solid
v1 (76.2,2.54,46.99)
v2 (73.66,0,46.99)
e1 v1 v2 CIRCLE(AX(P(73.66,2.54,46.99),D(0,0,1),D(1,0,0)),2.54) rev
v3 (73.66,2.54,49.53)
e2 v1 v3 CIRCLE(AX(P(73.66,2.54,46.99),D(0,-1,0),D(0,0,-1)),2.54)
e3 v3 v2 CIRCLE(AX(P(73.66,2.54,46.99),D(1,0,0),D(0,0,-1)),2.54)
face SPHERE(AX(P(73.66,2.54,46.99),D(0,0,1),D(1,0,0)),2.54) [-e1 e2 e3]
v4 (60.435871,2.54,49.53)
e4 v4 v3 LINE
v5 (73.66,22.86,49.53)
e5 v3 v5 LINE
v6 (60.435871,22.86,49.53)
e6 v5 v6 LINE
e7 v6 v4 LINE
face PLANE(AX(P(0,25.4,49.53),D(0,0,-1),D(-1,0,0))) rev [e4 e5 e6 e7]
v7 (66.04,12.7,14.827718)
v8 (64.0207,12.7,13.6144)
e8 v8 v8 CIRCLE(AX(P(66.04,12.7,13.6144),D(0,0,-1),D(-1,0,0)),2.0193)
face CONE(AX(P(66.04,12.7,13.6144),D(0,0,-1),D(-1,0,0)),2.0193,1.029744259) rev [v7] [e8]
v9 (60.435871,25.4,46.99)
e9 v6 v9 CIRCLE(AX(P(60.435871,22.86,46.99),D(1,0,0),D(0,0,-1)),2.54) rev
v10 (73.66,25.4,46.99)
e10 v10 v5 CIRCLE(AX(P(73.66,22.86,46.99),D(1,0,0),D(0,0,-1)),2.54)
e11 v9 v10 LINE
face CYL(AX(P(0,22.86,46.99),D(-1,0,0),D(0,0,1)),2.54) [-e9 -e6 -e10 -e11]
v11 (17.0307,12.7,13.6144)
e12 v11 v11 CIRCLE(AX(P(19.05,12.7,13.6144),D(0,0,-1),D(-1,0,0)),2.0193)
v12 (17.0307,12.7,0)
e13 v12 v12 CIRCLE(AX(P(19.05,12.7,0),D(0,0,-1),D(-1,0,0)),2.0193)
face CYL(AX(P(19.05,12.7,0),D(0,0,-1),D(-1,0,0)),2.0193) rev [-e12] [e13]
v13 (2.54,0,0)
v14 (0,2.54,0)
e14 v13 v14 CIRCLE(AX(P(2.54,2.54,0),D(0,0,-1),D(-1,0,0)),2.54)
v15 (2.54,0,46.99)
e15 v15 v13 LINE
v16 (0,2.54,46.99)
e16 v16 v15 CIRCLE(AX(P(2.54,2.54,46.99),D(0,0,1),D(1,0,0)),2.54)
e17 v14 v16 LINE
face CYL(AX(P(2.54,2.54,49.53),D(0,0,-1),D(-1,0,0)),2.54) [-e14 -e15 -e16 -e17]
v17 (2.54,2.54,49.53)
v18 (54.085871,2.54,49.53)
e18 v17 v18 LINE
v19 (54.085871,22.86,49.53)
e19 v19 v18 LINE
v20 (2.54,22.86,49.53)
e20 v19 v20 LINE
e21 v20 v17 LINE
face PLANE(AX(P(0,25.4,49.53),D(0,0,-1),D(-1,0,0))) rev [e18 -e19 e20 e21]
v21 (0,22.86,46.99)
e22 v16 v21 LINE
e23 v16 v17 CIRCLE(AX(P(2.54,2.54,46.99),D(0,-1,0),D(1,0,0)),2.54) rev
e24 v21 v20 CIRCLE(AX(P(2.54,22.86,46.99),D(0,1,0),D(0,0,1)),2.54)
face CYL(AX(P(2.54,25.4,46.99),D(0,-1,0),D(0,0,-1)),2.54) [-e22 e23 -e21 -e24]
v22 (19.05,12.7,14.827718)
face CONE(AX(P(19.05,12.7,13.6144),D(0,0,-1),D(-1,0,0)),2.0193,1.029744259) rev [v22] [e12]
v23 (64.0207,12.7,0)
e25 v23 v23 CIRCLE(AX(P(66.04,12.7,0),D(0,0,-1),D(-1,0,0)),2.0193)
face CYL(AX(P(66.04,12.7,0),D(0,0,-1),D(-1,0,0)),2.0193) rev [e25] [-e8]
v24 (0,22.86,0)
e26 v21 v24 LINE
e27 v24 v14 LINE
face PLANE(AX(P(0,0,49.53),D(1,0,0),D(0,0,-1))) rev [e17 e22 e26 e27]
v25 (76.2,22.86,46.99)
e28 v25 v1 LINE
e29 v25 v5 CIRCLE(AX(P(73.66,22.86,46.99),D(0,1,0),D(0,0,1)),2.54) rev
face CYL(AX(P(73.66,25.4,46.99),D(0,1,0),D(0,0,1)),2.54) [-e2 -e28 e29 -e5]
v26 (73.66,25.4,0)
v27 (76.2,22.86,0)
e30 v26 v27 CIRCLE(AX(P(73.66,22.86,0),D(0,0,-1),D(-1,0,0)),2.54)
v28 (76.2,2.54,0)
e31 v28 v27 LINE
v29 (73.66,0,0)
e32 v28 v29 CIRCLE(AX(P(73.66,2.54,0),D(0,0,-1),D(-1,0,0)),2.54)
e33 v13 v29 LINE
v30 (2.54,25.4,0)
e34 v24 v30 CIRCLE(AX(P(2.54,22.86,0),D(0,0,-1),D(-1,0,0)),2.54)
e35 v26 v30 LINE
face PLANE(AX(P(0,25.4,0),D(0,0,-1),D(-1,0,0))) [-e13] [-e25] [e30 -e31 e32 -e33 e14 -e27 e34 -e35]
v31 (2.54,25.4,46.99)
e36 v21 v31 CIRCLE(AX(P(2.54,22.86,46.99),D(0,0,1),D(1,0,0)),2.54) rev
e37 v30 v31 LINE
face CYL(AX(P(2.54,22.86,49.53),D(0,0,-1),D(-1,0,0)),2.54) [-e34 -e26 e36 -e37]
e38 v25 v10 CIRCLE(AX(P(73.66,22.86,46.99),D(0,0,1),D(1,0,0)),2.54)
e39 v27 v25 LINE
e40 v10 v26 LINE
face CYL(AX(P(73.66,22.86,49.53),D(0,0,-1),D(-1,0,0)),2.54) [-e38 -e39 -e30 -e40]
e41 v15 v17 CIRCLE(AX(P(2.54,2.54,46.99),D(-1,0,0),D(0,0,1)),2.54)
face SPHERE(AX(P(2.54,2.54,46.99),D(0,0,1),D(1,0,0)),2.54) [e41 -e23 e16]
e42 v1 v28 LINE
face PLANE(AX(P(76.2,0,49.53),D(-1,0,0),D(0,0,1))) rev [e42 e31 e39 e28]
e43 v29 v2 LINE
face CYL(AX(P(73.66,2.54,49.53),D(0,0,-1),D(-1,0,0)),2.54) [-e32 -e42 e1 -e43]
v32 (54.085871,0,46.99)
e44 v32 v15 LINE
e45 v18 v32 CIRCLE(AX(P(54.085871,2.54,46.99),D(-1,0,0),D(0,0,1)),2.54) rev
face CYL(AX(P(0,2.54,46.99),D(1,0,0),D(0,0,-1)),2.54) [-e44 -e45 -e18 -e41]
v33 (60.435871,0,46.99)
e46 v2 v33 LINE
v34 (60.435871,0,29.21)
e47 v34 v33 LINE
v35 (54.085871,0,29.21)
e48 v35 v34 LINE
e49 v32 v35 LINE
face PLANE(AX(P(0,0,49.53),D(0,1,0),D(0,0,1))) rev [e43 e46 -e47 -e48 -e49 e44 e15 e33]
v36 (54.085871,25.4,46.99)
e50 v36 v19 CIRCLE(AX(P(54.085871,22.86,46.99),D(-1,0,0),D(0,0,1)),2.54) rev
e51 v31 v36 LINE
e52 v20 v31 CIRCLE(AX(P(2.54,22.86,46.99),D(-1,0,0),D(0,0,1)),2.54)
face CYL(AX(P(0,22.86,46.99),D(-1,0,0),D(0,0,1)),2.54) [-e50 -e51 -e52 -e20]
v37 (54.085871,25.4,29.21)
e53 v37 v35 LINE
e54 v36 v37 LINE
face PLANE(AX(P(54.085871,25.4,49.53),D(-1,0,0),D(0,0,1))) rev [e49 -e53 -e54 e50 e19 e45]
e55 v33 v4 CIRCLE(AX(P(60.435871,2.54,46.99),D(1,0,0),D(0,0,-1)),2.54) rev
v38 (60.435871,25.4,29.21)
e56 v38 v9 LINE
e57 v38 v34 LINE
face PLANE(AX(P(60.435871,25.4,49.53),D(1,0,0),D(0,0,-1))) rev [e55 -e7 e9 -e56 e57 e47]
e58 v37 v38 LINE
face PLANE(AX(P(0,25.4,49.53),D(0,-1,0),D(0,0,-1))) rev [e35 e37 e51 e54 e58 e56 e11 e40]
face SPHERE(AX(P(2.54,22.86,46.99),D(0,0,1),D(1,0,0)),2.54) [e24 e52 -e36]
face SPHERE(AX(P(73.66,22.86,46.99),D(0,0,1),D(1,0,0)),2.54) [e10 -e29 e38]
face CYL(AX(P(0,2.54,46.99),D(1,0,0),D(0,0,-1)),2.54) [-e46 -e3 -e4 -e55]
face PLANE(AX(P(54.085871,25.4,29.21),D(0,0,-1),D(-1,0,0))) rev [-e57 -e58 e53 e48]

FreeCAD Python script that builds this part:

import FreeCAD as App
import Part
import Sketcher
from FreeCAD import Vector
Q = App.Units.Quantity


def edges_at(feature, points):
    """Names of the edges that pass closest to the given points."""
    edges = feature.Shape.Edges
    near = lambda p: min(range(len(edges)), key=lambda i: edges[i].distToShape(Part.Vertex(*p))[0])
    return sorted({f"Edge{near(p) + 1}" for p in points})

doc = App.newDocument("Part")
params = doc.addObject("Spreadsheet::Sheet", "Params")
for row, (alias, value) in enumerate([
    ("sketch1_width", "3 in"),
    ("sketch1_height", "1 in"),
    ("pad1_length", "1.95 in"),
    ("sketch2_height", "0.8 in"),
    ("sketch2_width", "0.25 in"),
    ("fillet_radius", "0.1 in"),
    ("sketch3_diameter", "0.159 in"),
    ("hole_diameter", "0.159 in"),
    ("hole_depth", "0.536 in"),
], start=1):
    params.set(f"A{row}", alias)
    params.set(f"B{row}", "=" + value)
    params.setAlias(f"B{row}", alias)

body = doc.addObject("PartDesign::Body", "Body")

sketch1 = body.newObject("Sketcher::SketchObject", "Sketch")
sketch1.AttachmentSupport = (doc.getObject("XY_Plane"), [""])
sketch1.MapMode = "FlatFace"
sketch1.addGeometry(Part.LineSegment(Vector(0, 25, 0), Vector(0, 0, 0)), False)
sketch1.addGeometry(Part.LineSegment(Vector(0, 0, 0), Vector(76, 0, 0)), False)
sketch1.addGeometry(Part.LineSegment(Vector(76, 0, 0), Vector(76, 25, 0)), False)
sketch1.addGeometry(Part.LineSegment(Vector(76, 25, 0), Vector(0, 25, 0)), False)
sketch1.addConstraint(Sketcher.Constraint("Coincident", 0, 2, 1, 1))
sketch1.addConstraint(Sketcher.Constraint("Coincident", 1, 2, 2, 1))
sketch1.addConstraint(Sketcher.Constraint("Coincident", 2, 2, 3, 1))
sketch1.addConstraint(Sketcher.Constraint("Coincident", 3, 2, 0, 1))
sketch1.addConstraint(Sketcher.Constraint("Vertical", 0))
sketch1.addConstraint(Sketcher.Constraint("Horizontal", 1))
sketch1.addConstraint(Sketcher.Constraint("Vertical", 2))
sketch1.addConstraint(Sketcher.Constraint("Horizontal", 3))
sketch1.addConstraint(Sketcher.Constraint("Coincident", 0, 2, -1, 1))
sketch1.addConstraint(Sketcher.Constraint("DistanceX", 1, 1, 1, 2, Q("3 in")))
sketch1.addConstraint(Sketcher.Constraint("DistanceY", 0, 2, 0, 1, Q("1 in")))
sketch1.setExpression("Constraints[9]", "Params.sketch1_width")
sketch1.setExpression("Constraints[10]", "Params.sketch1_height")
pad1 = body.newObject("PartDesign::Pad", "Pad")
pad1.Profile = sketch1
pad1.setExpression("Length", "Params.pad1_length")

sketch2 = body.newObject("Sketcher::SketchObject", "Sketch001")
sketch2.AttachmentSupport = (doc.getObject("XZ_Plane"), [""])
sketch2.MapMode = "FlatFace"
sketch2.addGeometry(Part.LineSegment(Vector(54, 50, 0), Vector(54, 29, 0)), False)
sketch2.addGeometry(Part.LineSegment(Vector(54, 29, 0), Vector(60, 29, 0)), False)
sketch2.addGeometry(Part.LineSegment(Vector(60, 29, 0), Vector(60, 50, 0)), False)
sketch2.addGeometry(Part.LineSegment(Vector(60, 50, 0), Vector(54, 50, 0)), False)
sketch2.addConstraint(Sketcher.Constraint("Coincident", 0, 2, 1, 1))
sketch2.addConstraint(Sketcher.Constraint("Coincident", 1, 2, 2, 1))
sketch2.addConstraint(Sketcher.Constraint("Coincident", 2, 2, 3, 1))
sketch2.addConstraint(Sketcher.Constraint("Coincident", 3, 2, 0, 1))
sketch2.addConstraint(Sketcher.Constraint("Vertical", 0))
sketch2.addConstraint(Sketcher.Constraint("Horizontal", 1))
sketch2.addConstraint(Sketcher.Constraint("Vertical", 2))
sketch2.addConstraint(Sketcher.Constraint("Horizontal", 3))
sketch2.addConstraint(Sketcher.Constraint("DistanceY", 0, 2, 0, 1, Q("0.8 in")))
sketch2.addConstraint(Sketcher.Constraint("DistanceX", 1, 1, 1, 2, Q("0.25 in")))
sketch2.addConstraint(Sketcher.Constraint("DistanceY", -1, 1, 0, 2, Q("1.15 in")))
sketch2.addConstraint(Sketcher.Constraint("DistanceX", -1, 1, 0, 2, 54.085871))
sketch2.setExpression("Constraints[8]", "Params.sketch2_height")
sketch2.setExpression("Constraints[9]", "Params.sketch2_width")
pocket1 = body.newObject("PartDesign::Pocket", "Pocket")
pocket1.Profile = sketch2
pocket1.Type = "ThroughAll"
doc.recompute()

fillet = body.newObject("PartDesign::Fillet", "Fillet")
fillet.Base = (pocket1, edges_at(pocket1, [
    (76.2, 12.7, 49.53),
    (68.318, 25.4, 49.53),
    (68.318, 0, 49.53),
    (27.043, 25.4, 49.53),
    (0, 12.7, 49.53),
    (27.043, 0, 49.53),
    (0, 25.4, 24.765),
    (76.2, 25.4, 24.765),
    (76.2, 0, 24.765),
    (0, 0, 24.765),
]))
fillet.setExpression("Radius", "Params.fillet_radius")

sketch3 = body.newObject("Sketcher::SketchObject", "Sketch002")
sketch3.AttachmentSupport = (doc.getObject("XY_Plane"), [""])
sketch3.MapMode = "FlatFace"
sketch3.addGeometry(Part.Circle(Vector(66, 12.7, 0), Vector(0, 0, 1), 2), False)
sketch3.addGeometry(Part.Circle(Vector(19.1, 12.7, 0), Vector(0, 0, 1), 2), False)
sketch3.addConstraint(Sketcher.Constraint("Equal", 0, 1))
sketch3.addConstraint(Sketcher.Constraint("Horizontal", 0, 3, 1, 3))
sketch3.addConstraint(Sketcher.Constraint("Diameter", 0, Q("0.159 in")))
sketch3.addConstraint(Sketcher.Constraint("DistanceX", -1, 1, 0, 3, Q("2.6 in")))
sketch3.addConstraint(Sketcher.Constraint("DistanceY", -1, 1, 0, 3, Q("0.5 in")))
sketch3.addConstraint(Sketcher.Constraint("DistanceX", -1, 1, 1, 3, Q("0.75 in")))
sketch3.setExpression("Constraints[2]", "Params.sketch3_diameter")
doc.recompute()
hole = body.newObject("PartDesign::Hole", "Hole")
hole.Profile = sketch3
hole.ThreadType = "None"
hole.setExpression("Diameter", "Params.hole_diameter")
hole.DepthType = "Dimension"
hole.setExpression("Depth", "Params.hole_depth")
hole.DrillPoint = "Angled"
hole.DrillPointAngle = 118
hole.Reversed = True

doc.recompute()
